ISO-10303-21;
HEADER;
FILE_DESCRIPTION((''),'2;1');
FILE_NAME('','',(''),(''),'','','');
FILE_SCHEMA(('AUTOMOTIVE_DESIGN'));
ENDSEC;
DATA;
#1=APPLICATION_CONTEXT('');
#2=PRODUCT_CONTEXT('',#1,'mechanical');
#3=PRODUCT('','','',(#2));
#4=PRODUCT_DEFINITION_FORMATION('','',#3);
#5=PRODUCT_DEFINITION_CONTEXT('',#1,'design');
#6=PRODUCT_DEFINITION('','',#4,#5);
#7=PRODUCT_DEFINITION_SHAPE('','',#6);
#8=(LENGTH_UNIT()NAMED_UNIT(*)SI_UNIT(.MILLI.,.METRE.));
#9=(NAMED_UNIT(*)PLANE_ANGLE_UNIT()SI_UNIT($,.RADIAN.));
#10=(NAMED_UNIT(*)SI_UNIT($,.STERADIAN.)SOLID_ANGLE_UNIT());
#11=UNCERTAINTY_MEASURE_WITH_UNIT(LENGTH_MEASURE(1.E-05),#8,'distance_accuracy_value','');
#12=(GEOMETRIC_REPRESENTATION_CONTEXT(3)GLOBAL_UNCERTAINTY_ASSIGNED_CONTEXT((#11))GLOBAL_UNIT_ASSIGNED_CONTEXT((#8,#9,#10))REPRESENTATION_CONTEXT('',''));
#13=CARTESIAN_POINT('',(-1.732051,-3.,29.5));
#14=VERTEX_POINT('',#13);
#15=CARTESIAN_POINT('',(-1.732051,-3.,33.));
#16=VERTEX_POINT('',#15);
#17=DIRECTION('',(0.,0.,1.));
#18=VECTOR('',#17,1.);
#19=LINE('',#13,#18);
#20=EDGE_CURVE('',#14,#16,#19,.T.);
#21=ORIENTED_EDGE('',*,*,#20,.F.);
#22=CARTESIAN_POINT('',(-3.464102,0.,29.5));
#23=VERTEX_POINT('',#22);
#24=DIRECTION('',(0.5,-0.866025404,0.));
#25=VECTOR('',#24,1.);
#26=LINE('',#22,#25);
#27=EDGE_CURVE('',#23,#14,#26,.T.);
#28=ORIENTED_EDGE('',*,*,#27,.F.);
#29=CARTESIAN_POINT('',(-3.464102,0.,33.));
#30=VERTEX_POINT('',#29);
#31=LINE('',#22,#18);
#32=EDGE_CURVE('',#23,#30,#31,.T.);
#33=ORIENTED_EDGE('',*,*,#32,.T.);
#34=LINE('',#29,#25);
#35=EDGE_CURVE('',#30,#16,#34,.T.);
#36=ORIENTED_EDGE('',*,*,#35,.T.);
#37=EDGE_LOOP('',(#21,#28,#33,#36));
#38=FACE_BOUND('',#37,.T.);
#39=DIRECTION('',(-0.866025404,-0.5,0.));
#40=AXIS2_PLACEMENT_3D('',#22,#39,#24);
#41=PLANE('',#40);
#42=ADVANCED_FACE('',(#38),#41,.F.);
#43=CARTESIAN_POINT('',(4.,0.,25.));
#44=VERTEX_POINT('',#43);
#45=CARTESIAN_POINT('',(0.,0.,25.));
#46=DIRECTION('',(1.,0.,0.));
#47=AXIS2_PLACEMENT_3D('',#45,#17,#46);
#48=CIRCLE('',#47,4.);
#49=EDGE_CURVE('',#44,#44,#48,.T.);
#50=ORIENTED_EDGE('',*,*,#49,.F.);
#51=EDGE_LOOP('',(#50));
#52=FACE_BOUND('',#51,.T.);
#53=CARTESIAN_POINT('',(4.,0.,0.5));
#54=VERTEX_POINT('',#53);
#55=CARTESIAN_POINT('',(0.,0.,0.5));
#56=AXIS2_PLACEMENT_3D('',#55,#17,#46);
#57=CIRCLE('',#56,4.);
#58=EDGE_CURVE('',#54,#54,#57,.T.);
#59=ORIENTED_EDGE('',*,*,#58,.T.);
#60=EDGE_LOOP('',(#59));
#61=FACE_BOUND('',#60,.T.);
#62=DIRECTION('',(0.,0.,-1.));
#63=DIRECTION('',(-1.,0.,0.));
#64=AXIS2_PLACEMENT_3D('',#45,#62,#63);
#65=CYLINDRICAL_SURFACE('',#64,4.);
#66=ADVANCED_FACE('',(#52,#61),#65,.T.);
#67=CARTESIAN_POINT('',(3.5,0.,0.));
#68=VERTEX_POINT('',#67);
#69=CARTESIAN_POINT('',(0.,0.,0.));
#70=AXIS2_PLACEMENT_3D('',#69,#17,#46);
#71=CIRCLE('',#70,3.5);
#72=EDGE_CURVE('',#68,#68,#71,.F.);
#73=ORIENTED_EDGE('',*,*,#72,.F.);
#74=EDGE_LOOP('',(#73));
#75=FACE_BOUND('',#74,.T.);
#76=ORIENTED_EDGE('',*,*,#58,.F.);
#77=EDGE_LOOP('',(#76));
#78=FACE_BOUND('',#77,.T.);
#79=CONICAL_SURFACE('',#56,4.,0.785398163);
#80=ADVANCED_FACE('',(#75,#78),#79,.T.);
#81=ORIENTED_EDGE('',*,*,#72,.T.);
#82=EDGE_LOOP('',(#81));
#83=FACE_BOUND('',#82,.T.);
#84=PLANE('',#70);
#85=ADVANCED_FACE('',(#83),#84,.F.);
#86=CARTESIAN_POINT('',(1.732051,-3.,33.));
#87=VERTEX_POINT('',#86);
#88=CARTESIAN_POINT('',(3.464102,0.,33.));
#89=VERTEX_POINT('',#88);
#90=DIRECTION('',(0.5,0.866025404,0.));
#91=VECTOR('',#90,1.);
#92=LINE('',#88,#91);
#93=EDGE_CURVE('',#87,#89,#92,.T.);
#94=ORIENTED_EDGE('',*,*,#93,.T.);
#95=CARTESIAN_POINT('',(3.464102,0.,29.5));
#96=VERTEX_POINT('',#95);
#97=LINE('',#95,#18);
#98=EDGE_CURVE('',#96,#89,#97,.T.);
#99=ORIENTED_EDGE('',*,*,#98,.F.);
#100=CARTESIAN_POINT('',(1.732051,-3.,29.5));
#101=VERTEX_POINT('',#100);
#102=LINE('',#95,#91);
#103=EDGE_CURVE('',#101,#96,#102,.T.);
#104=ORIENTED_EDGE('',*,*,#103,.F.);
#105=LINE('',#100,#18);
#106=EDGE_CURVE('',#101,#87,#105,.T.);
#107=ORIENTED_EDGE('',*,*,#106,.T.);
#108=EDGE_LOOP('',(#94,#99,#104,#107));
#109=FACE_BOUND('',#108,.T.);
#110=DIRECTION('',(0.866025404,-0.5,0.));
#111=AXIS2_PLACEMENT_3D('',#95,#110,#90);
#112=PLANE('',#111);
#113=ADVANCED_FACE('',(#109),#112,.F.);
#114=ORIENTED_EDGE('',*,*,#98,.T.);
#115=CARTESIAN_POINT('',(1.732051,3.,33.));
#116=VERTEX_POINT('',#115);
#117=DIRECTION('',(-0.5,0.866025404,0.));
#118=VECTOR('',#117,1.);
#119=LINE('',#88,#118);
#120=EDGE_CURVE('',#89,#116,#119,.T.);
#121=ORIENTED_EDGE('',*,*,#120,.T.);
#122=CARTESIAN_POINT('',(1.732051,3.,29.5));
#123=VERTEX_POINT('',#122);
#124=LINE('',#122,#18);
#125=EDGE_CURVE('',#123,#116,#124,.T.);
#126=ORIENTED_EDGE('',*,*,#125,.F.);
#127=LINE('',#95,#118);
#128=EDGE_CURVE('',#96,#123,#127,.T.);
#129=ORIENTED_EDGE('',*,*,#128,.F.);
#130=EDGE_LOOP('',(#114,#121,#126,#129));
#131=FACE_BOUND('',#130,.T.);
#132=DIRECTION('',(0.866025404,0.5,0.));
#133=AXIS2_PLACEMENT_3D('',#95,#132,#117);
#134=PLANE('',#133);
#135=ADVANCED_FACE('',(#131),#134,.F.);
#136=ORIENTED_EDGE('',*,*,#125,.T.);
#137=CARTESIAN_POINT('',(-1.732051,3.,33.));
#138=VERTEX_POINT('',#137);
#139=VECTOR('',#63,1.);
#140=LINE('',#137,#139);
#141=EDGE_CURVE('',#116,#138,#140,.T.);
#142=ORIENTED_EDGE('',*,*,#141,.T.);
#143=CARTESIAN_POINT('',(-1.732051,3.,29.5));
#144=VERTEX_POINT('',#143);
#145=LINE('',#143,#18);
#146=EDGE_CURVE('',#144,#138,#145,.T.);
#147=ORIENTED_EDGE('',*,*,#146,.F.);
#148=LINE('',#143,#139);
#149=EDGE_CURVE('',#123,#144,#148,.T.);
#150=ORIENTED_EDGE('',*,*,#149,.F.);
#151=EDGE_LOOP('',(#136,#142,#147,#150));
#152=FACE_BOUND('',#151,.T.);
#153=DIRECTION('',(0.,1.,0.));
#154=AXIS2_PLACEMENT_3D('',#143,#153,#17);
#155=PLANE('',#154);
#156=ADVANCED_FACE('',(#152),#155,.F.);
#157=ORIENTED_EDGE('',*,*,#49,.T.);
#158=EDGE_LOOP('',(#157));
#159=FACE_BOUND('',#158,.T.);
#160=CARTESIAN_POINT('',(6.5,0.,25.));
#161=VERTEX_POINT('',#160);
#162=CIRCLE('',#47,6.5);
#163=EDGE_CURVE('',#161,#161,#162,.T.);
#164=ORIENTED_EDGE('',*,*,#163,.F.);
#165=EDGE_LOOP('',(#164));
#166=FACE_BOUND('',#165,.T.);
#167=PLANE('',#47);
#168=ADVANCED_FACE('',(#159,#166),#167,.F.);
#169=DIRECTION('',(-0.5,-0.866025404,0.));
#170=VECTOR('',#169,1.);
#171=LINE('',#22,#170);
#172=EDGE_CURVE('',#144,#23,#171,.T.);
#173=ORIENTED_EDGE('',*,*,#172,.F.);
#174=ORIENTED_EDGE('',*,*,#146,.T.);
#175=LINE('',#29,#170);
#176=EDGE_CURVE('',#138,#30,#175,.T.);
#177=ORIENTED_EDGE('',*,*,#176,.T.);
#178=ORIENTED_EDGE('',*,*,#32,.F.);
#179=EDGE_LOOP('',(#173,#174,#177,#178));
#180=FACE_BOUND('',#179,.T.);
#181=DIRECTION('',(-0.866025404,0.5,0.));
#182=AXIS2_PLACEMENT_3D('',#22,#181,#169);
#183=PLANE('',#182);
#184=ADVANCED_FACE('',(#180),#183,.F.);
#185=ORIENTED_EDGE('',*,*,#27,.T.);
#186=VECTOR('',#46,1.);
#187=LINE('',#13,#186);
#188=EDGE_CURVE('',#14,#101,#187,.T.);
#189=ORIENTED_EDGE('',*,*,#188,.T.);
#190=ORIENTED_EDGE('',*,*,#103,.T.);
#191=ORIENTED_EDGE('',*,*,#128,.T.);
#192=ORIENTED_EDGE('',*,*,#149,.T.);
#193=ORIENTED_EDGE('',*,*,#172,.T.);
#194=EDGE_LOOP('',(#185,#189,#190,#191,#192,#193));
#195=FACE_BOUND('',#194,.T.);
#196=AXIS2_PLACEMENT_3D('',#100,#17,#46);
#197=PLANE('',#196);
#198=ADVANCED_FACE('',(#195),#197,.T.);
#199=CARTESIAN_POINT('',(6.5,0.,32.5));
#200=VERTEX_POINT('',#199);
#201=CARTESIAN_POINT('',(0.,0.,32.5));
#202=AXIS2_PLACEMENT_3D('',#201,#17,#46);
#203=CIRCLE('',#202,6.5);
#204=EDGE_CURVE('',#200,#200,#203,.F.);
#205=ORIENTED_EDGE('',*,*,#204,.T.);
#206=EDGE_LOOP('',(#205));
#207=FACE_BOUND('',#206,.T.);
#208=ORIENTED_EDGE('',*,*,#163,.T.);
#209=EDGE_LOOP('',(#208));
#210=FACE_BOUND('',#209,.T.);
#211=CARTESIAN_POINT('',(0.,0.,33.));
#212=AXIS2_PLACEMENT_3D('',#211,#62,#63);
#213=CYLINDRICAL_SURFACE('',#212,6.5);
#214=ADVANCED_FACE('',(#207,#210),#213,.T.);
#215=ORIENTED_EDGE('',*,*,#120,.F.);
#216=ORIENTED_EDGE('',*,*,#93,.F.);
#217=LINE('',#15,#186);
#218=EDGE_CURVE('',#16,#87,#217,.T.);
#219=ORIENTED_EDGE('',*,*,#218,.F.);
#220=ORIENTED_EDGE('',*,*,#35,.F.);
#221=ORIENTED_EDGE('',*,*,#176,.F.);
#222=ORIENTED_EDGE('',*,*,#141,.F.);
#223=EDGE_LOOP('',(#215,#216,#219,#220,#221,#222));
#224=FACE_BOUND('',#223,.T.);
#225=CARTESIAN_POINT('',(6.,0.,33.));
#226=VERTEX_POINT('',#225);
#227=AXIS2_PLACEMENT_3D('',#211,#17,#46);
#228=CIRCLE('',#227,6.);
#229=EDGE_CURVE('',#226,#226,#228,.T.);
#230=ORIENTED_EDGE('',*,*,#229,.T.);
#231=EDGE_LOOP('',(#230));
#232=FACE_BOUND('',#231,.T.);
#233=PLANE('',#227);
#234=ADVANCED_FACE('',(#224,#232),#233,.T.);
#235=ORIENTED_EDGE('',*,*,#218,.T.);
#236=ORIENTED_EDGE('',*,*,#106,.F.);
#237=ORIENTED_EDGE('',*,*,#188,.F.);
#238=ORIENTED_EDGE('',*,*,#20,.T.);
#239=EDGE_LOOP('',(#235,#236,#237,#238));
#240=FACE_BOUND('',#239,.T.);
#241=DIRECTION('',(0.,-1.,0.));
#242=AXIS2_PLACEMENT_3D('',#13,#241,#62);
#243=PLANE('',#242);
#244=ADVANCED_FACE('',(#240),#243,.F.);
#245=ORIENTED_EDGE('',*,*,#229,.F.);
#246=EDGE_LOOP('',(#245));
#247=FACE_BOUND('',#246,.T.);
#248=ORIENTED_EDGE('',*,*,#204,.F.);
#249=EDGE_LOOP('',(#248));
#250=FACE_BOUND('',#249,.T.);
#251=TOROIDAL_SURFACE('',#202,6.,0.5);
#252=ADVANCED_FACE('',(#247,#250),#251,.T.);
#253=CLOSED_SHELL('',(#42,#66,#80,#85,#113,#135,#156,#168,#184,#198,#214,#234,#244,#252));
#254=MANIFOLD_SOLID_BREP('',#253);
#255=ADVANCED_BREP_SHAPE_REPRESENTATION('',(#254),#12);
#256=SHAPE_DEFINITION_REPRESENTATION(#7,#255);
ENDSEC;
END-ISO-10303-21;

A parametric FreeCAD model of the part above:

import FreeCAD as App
import Part
import Sketcher
Q = App.Units.Quantity


def edges_at(feature, points):
    """Names of the edges that pass closest to the given points."""
    edges = feature.Shape.Edges
    near = lambda p: min(range(len(edges)), key=lambda i: edges[i].distToShape(Part.Vertex(*p))[0])
    return sorted({f"Edge{near(p) + 1}" for p in points})

doc = App.newDocument("Part")
body = doc.addObject("PartDesign::Body", "Body")

sketch1 = doc.addObject("Sketcher::SketchObject", "Sketch")
body.addObject(sketch1)
sketch1.AttachmentSupport = (doc.XY_Plane, [""])
sketch1.MapMode = "FlatFace"
sketch1.addGeometry(Part.Circle(App.Vector(0, 0, 0), App.Vector(0, 0, 1), 4), False)
sketch1.addConstraint(Sketcher.Constraint("Coincident", 0, 3, -1, 1))
sketch1.addConstraint(Sketcher.Constraint("Diameter", 0, Q("8 mm")))
pad1 = doc.addObject("PartDesign::Pad", "Pad")
body.addObject(pad1)
pad1.Profile = sketch1
pad1.Length = 25

sketch2 = doc.addObject("Sketcher::SketchObject", "Sketch001")
body.addObject(sketch2)
sketch2.AttachmentSupport = (doc.XY_Plane, [""])
sketch2.MapMode = "FlatFace"
sketch2.AttachmentOffset = App.Placement(App.Vector(0, 0, 25), App.Rotation())
sketch2.addGeometry(Part.Circle(App.Vector(0, 0, 0), App.Vector(0, 0, 1), 6), False)
sketch2.addConstraint(Sketcher.Constraint("Coincident", 0, 3, -1, 1))
sketch2.addConstraint(Sketcher.Constraint("Diameter", 0, Q("13 mm")))
pad2 = doc.addObject("PartDesign::Pad", "Pad001")
body.addObject(pad2)
pad2.Profile = sketch2
pad2.Length = 8

sketch3 = doc.addObject("Sketcher::SketchObject", "Sketch002")
body.addObject(sketch3)
sketch3.AttachmentSupport = (doc.XY_Plane, [""])
sketch3.MapMode = "FlatFace"
sketch3.AttachmentOffset = App.Placement(App.Vector(0, 0, 33), App.Rotation())
sketch3.addGeometry(Part.LineSegment(App.Vector(1.7, 3, 0), App.Vector(-1.7, 3, 0)), False)
sketch3.addGeometry(Part.LineSegment(App.Vector(-1.7, 3, 0), App.Vector(-3.5, 0, 0)), False)
sketch3.addGeometry(Part.LineSegment(App.Vector(-3.5, 0, 0), App.Vector(-1.7, -3, 0)), False)
sketch3.addGeometry(Part.LineSegment(App.Vector(-1.7, -3, 0), App.Vector(1.7, -3, 0)), False)
sketch3.addGeometry(Part.LineSegment(App.Vector(1.7, -3, 0), App.Vector(3.5, 0, 0)), False)
sketch3.addGeometry(Part.LineSegment(App.Vector(3.5, 0, 0), App.Vector(1.7, 3, 0)), False)
sketch3.addConstraint(Sketcher.Constraint("Coincident", 0, 2, 1, 1))
sketch3.addConstraint(Sketcher.Constraint("Coincident", 1, 2, 2, 1))
sketch3.addConstraint(Sketcher.Constraint("Coincident", 2, 2, 3, 1))
sketch3.addConstraint(Sketcher.Constraint("Coincident", 3, 2, 4, 1))
sketch3.addConstraint(Sketcher.Constraint("Coincident", 4, 2, 5, 1))
sketch3.addConstraint(Sketcher.Constraint("Coincident", 5, 2, 0, 1))
sketch3.addConstraint(Sketcher.Constraint("Horizontal", 0))
sketch3.addConstraint(Sketcher.Constraint("Horizontal", 3))
sketch3.addConstraint(Sketcher.Constraint("Symmetric", 0, 2, 3, 2, -1, 1))
sketch3.addConstraint(Sketcher.Constraint("Symmetric", 1, 2, 4, 2, -1, 1))
sketch3.addConstraint(Sketcher.Constraint("PointOnObject", 1, 2, -1))
sketch3.addConstraint(Sketcher.Constraint("Parallel", 2, 5))
sketch3.addConstraint(Sketcher.Constraint("Vertical", 0, 2, 2, 2))
sketch3.addConstraint(Sketcher.Constraint("Angle", 1, Q("-120 deg")))
sketch3.addConstraint(Sketcher.Constraint("DistanceY", -1, 1, 0, 2, Q("3 mm")))
sketch3.addConstraint(Sketcher.Constraint("DistanceX", 0, 2, 0, 1, Q("3.464102 mm")))
pocket1 = doc.addObject("PartDesign::Pocket", "Pocket")
body.addObject(pocket1)
pocket1.Profile = sketch3
pocket1.Length = 3.5
doc.recompute()

fillet = doc.addObject("PartDesign::Fillet", "Fillet")
body.addObject(fillet)
fillet.Base = (pocket1, edges_at(pocket1, [(-6.5, 0, 33)]))
fillet.Radius = 0.5
doc.recompute()

chamfer = doc.addObject("PartDesign::Chamfer", "Chamfer")
body.addObject(chamfer)
chamfer.Base = (fillet, edges_at(fillet, [(-4, 0, 0)]))
chamfer.Size = 0.5

doc.recompute()
